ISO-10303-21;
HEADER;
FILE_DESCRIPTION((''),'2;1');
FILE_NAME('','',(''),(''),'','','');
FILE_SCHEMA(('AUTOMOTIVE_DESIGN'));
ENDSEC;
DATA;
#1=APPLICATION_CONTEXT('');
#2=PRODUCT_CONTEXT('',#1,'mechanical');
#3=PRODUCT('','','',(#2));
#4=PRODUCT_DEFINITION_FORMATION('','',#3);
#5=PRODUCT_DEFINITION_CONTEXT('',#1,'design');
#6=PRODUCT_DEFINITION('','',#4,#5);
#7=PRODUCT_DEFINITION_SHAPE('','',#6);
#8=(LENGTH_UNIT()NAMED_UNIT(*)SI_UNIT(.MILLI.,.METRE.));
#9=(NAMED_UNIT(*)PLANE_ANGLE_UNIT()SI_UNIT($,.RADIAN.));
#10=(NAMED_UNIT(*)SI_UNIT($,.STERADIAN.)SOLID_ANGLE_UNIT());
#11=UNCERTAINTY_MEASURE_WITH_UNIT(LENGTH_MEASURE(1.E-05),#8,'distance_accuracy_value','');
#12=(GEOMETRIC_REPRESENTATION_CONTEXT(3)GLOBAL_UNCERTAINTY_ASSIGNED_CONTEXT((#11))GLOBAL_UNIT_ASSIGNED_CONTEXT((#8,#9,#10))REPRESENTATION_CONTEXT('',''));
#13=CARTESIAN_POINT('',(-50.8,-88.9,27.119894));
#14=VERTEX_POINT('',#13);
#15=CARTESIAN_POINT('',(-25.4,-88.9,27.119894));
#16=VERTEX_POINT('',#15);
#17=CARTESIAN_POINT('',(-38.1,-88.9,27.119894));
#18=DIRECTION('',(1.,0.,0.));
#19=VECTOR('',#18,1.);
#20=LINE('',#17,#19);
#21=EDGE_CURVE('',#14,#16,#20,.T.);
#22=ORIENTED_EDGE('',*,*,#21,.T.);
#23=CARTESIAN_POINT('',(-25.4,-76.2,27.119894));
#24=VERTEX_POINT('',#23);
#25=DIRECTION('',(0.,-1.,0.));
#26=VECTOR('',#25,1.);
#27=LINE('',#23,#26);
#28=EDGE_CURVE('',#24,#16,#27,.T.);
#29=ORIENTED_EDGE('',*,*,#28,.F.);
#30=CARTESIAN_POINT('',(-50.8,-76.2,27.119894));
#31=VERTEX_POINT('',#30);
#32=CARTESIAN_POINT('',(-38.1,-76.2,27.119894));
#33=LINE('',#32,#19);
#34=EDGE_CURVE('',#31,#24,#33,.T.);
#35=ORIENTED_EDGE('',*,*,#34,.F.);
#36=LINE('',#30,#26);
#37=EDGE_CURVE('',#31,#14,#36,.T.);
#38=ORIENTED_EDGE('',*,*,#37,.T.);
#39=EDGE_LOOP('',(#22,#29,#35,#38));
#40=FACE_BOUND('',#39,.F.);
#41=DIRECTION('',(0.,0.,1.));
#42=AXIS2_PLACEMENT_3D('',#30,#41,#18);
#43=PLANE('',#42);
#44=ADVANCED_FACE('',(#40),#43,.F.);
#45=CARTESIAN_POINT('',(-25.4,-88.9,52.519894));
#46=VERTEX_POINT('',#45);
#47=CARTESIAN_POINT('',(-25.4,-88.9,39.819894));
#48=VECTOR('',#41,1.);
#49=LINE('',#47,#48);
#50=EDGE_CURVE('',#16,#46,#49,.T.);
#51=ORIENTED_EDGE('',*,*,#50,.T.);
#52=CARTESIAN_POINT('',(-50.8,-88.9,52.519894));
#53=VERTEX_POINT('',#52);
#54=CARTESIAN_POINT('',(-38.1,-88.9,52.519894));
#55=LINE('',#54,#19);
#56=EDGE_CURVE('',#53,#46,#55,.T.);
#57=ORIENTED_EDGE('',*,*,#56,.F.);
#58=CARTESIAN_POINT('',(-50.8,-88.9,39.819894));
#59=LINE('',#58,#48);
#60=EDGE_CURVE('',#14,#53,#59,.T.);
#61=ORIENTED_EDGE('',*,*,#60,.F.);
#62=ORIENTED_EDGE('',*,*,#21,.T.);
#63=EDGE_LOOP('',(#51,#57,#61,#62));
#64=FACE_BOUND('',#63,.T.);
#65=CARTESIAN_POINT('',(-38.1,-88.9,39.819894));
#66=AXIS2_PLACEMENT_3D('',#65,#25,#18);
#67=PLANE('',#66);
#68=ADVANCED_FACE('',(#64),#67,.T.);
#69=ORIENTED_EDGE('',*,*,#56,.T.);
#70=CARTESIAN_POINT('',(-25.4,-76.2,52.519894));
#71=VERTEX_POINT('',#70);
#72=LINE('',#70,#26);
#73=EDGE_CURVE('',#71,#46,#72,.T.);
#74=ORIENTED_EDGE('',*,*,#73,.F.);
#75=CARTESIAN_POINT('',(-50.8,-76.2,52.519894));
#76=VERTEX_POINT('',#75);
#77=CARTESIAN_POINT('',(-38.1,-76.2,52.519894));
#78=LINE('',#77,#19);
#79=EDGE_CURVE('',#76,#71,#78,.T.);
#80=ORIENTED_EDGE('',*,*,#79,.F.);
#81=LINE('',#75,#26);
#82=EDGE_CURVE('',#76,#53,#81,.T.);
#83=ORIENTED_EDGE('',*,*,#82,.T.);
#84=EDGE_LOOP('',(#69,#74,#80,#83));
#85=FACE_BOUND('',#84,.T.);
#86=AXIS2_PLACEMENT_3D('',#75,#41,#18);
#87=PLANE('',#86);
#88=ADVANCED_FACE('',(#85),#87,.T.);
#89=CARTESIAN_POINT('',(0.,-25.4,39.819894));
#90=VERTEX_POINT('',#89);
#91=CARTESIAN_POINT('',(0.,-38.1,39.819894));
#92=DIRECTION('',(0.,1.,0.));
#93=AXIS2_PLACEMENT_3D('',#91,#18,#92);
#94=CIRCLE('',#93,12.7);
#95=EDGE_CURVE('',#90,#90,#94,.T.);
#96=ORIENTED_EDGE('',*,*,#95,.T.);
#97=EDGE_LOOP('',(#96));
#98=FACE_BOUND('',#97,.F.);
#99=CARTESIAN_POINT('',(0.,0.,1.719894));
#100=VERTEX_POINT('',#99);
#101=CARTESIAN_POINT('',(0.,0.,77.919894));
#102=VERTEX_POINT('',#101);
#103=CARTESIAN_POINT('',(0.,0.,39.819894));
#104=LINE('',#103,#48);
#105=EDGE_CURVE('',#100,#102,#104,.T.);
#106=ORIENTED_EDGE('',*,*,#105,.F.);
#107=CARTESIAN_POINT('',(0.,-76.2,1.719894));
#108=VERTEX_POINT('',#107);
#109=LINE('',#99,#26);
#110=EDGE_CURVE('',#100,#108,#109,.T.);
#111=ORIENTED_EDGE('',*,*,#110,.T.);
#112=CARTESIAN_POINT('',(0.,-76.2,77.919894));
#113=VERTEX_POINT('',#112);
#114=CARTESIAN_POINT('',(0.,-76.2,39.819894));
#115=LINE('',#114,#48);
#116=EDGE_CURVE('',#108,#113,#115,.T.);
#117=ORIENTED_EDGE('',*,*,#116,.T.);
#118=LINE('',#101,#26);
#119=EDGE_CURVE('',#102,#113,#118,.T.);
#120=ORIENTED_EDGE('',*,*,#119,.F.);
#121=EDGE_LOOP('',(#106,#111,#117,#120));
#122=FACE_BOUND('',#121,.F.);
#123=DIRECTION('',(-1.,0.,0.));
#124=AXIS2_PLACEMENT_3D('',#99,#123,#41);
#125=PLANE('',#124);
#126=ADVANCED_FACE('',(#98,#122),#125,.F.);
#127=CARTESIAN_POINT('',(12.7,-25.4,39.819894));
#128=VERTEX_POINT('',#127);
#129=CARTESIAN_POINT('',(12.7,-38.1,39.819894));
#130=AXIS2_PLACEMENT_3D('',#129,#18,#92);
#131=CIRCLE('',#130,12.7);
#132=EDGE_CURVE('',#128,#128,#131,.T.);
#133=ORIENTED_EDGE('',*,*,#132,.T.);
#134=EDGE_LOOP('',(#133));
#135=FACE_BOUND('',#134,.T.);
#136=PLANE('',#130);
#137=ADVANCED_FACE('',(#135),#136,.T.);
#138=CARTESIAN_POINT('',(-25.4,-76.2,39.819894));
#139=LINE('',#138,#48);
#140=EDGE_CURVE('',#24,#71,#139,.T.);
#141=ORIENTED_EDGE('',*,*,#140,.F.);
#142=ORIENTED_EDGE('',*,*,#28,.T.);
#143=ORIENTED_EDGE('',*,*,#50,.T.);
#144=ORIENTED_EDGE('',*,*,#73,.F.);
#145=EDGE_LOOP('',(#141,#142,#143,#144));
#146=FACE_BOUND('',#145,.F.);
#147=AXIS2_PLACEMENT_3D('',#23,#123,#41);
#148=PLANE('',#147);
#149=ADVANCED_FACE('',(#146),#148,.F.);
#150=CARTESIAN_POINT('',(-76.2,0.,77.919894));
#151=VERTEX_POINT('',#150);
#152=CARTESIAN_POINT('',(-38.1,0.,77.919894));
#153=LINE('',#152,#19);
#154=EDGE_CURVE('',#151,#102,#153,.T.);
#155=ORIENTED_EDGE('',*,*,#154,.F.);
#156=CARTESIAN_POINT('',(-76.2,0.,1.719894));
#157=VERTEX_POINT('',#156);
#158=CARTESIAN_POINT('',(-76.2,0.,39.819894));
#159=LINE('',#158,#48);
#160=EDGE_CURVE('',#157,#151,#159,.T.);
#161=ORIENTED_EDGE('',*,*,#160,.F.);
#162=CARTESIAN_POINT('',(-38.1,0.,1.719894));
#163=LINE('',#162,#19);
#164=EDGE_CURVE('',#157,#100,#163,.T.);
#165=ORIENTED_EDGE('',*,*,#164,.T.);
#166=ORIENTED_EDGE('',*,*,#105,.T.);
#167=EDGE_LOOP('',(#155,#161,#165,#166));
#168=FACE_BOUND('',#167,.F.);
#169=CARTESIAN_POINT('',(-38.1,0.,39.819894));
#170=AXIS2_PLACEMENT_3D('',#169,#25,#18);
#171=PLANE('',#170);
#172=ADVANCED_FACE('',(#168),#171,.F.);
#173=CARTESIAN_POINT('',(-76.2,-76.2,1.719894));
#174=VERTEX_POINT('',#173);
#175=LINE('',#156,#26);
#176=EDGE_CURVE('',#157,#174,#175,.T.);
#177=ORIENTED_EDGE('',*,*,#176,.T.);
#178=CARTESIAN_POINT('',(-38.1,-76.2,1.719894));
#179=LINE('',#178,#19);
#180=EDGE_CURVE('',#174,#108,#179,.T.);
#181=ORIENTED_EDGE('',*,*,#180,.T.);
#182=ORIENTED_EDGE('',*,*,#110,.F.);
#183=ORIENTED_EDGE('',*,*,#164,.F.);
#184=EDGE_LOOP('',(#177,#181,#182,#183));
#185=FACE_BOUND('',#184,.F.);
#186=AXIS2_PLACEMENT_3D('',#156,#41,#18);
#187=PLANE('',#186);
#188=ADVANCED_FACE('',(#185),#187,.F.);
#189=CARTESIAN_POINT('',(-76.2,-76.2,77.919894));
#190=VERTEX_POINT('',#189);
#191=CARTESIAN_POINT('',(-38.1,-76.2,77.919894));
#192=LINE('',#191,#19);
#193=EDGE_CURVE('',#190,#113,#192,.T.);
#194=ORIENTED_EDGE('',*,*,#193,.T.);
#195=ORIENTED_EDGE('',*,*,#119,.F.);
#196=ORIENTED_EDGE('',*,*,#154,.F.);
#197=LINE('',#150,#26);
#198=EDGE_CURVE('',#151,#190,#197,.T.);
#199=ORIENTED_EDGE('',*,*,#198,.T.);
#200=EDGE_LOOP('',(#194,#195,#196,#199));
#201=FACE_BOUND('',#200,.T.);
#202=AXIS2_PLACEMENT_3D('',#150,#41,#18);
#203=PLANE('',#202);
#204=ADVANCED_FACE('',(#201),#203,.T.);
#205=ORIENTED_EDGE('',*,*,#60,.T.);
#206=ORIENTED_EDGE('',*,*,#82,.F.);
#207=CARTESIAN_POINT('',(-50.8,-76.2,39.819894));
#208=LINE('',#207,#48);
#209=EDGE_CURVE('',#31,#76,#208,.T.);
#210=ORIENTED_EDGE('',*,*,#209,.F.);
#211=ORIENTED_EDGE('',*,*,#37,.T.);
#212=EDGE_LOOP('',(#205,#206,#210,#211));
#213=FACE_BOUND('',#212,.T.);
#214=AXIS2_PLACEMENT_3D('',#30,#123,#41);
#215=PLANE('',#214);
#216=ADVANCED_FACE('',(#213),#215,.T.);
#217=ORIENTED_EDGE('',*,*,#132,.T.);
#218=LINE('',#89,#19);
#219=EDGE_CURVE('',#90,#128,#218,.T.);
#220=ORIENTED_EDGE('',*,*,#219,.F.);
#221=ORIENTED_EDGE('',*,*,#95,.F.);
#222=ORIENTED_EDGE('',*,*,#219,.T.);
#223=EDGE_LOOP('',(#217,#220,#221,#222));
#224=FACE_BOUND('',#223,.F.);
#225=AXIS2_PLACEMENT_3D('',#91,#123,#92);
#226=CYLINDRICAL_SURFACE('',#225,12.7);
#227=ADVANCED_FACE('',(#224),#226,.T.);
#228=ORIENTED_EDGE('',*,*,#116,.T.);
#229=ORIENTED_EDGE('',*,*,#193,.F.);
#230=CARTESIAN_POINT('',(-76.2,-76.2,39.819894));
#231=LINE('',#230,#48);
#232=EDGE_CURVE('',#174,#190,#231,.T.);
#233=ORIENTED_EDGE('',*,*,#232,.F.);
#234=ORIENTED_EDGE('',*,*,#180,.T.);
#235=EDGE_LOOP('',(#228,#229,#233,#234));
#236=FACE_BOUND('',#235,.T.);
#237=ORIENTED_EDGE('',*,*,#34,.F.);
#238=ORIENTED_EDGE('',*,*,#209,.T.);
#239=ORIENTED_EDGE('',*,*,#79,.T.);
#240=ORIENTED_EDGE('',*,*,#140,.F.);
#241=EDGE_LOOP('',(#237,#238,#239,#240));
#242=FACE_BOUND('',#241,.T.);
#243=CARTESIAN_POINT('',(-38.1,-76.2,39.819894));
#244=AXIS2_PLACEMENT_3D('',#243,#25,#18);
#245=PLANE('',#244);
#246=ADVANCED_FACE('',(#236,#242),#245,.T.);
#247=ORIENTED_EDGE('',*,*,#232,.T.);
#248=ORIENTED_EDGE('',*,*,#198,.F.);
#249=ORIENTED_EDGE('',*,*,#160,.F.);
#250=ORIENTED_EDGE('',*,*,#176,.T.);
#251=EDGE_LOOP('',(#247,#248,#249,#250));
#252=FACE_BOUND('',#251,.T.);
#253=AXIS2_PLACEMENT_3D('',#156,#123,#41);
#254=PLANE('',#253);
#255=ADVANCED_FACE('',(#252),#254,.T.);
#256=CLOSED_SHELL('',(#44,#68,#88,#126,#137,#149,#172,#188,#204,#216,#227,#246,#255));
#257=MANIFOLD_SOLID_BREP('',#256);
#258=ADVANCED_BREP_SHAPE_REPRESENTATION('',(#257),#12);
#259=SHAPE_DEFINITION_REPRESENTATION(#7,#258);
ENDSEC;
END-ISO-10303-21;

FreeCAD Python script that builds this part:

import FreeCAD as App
import Part
import Sketcher
from FreeCAD import Vector
Q = App.Units.Quantity

doc = App.newDocument("Part")
body = doc.addObject("PartDesign::Body", "Body")

sketch1 = doc.addObject("Sketcher::SketchObject", "Sketch")
body.addObject(sketch1)
sketch1.AttachmentSupport = (doc.XZ_Plane, [""])
sketch1.MapMode = "FlatFace"
sketch1.addGeometry(Part.LineSegment(Vector(-76, 78, 0), Vector(-76, 2, 0)), False)
sketch1.addGeometry(Part.LineSegment(Vector(-76, 2, 0), Vector(0, 2, 0)), False)
sketch1.addGeometry(Part.LineSegment(Vector(0, 2, 0), Vector(0, 78, 0)), False)
sketch1.addGeometry(Part.LineSegment(Vector(0, 78, 0), Vector(-76, 78, 0)), False)
sketch1.addConstraint(Sketcher.Constraint("Coincident", 0, 2, 1, 1))
sketch1.addConstraint(Sketcher.Constraint("Coincident", 1, 2, 2, 1))
sketch1.addConstraint(Sketcher.Constraint("Coincident", 2, 2, 3, 1))
sketch1.addConstraint(Sketcher.Constraint("Coincident", 3, 2, 0, 1))
sketch1.addConstraint(Sketcher.Constraint("Vertical", 0))
sketch1.addConstraint(Sketcher.Constraint("Horizontal", 1))
sketch1.addConstraint(Sketcher.Constraint("Vertical", 2))
sketch1.addConstraint(Sketcher.Constraint("Horizontal", 3))
sketch1.addConstraint(Sketcher.Constraint("PointOnObject", 1, 2, -2))
sketch1.addConstraint(Sketcher.Constraint("Equal", 3, 0))
sketch1.addConstraint(Sketcher.Constraint("DistanceX", 1, 1, 1, 2, Q("3 in")))
sketch1.addConstraint(Sketcher.Constraint("DistanceY", -1, 1, 0, 2, 1.719894))
pad1 = doc.addObject("PartDesign::Pad", "Pad")
body.addObject(pad1)
pad1.Profile = sketch1
pad1.Length = Q("3 in")

sketch2 = doc.addObject("Sketcher::SketchObject", "Sketch001")
body.addObject(sketch2)
sketch2.AttachmentSupport = (doc.XZ_Plane, [""])
sketch2.MapMode = "FlatFace"
sketch2.AttachmentOffset = App.Placement(Vector(0, 0, 3 * 25.4), App.Rotation())
sketch2.addGeometry(Part.LineSegment(Vector(-51, 53, 0), Vector(-51, 27, 0)), False)
sketch2.addGeometry(Part.LineSegment(Vector(-51, 27, 0), Vector(-25, 27, 0)), False)
sketch2.addGeometry(Part.LineSegment(Vector(-25, 27, 0), Vector(-25, 53, 0)), False)
sketch2.addGeometry(Part.LineSegment(Vector(-25, 53, 0), Vector(-51, 53, 0)), False)
sketch2.addConstraint(Sketcher.Constraint("Coincident", 0, 2, 1, 1))
sketch2.addConstraint(Sketcher.Constraint("Coincident", 1, 2, 2, 1))
sketch2.addConstraint(Sketcher.Constraint("Coincident", 2, 2, 3, 1))
sketch2.addConstraint(Sketcher.Constraint("Coincident", 3, 2, 0, 1))
sketch2.addConstraint(Sketcher.Constraint("Vertical", 0))
sketch2.addConstraint(Sketcher.Constraint("Horizontal", 1))
sketch2.addConstraint(Sketcher.Constraint("Vertical", 2))
sketch2.addConstraint(Sketcher.Constraint("Horizontal", 3))
sketch2.addConstraint(Sketcher.Constraint("Equal", 3, 0))
sketch2.addConstraint(Sketcher.Constraint("DistanceX", 1, 1, 1, 2, Q("1 in")))
sketch2.addConstraint(Sketcher.Constraint("DistanceX", 0, 2, -1, 1, Q("2 in")))
sketch2.addConstraint(Sketcher.Constraint("DistanceY", -1, 1, 0, 2, 27.119894))
pad2 = doc.addObject("PartDesign::Pad", "Pad001")
body.addObject(pad2)
pad2.Profile = sketch2
pad2.Length = Q("0.5 in")

sketch3 = doc.addObject("Sketcher::SketchObject", "Sketch002")
body.addObject(sketch3)
sketch3.AttachmentSupport = (doc.YZ_Plane, [""])
sketch3.MapMode = "FlatFace"
sketch3.addGeometry(Part.Circle(Vector(-38, 40, 0), Vector(0, 0, 1), 13), False)
sketch3.addConstraint(Sketcher.Constraint("Diameter", 0, Q("1 in")))
sketch3.addConstraint(Sketcher.Constraint("DistanceX", 0, 3, -1, 1, Q("1.5 in")))
sketch3.addConstraint(Sketcher.Constraint("DistanceY", -1, 1, 0, 3, 39.819894))
pad3 = doc.addObject("PartDesign::Pad", "Pad002")
body.addObject(pad3)
pad3.Profile = sketch3
pad3.Length = Q("0.5 in")

doc.recompute()
